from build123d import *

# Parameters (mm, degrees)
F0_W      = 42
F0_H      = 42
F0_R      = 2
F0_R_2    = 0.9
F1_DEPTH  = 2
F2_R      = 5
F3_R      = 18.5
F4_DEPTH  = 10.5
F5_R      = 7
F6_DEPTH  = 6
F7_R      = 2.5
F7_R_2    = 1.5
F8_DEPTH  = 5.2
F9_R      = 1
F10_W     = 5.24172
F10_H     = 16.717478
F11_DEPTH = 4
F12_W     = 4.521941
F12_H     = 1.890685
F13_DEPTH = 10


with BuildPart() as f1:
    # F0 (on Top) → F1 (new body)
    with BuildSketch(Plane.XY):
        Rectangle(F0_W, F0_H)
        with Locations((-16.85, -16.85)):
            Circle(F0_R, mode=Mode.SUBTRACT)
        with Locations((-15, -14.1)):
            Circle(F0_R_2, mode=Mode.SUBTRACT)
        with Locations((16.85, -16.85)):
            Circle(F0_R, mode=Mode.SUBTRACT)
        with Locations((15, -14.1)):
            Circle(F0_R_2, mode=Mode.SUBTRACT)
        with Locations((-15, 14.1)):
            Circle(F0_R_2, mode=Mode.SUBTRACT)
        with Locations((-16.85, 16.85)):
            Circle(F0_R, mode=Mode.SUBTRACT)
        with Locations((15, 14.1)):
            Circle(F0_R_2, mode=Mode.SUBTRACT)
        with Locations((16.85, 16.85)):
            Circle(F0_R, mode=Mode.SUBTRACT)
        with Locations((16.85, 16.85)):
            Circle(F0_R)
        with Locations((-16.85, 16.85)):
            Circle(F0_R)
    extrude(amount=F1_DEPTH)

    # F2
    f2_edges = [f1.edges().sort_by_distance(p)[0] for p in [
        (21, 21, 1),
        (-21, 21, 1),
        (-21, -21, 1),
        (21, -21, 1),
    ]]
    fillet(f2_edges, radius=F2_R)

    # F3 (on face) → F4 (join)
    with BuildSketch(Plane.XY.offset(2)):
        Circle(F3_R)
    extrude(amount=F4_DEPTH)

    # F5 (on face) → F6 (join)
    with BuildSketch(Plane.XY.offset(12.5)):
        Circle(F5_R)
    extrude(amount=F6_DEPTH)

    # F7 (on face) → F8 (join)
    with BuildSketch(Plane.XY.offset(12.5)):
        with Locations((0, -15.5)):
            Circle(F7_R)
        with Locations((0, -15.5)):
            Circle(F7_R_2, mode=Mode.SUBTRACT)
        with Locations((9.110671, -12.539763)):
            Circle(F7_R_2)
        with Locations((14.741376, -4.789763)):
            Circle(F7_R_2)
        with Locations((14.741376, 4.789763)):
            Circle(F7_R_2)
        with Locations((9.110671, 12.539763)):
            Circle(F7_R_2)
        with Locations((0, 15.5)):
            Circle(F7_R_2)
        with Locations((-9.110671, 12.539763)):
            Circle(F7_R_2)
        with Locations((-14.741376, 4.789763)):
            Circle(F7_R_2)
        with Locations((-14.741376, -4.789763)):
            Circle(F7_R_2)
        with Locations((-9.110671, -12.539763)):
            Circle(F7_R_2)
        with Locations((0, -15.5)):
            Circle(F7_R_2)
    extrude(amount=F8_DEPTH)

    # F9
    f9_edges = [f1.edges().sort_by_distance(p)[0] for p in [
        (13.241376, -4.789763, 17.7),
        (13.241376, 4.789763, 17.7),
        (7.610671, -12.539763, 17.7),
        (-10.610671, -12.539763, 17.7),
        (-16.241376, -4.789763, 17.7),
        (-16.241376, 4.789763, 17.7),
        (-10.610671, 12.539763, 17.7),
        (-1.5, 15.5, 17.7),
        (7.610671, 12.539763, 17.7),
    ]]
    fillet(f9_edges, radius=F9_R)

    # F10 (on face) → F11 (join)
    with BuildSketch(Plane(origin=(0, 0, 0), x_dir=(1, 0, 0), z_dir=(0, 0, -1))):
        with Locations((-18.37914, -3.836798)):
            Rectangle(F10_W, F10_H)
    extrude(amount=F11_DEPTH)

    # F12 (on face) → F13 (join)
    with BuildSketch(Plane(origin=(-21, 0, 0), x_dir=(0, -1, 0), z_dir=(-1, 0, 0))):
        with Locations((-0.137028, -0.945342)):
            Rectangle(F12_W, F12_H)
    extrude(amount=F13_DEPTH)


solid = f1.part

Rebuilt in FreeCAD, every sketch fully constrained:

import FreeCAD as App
import Part
import Sketcher


def edges_at(feature, points):
    """Names of the edges that pass closest to the given points."""
    edges = feature.Shape.Edges
    near = lambda p: min(range(len(edges)), key=lambda i: edges[i].distToShape(Part.Vertex(*p))[0])
    return sorted({f"Edge{near(p) + 1}" for p in points})

doc = App.newDocument("Part")
body = doc.addObject("PartDesign::Body", "Body")

# Sketch on XY plane
sketch1 = body.newObject("Sketcher::SketchObject", "Sketch")
sketch1.AttachmentSupport = (doc.getObject("XY_Plane"), [""])
sketch1.MapMode = "FlatFace"
sketch1.addGeometry(Part.LineSegment(App.Vector(-21, 21, 0), App.Vector(-21, -21, 0)), False)
sketch1.addGeometry(Part.LineSegment(App.Vector(-21, -21, 0), App.Vector(21, -21, 0)), False)
sketch1.addGeometry(Part.LineSegment(App.Vector(21, -21, 0), App.Vector(21, 21, 0)), False)
sketch1.addGeometry(Part.LineSegment(App.Vector(21, 21, 0), App.Vector(-21, 21, 0)), False)
sketch1.addGeometry(Part.Circle(App.Vector(-16.9, -16.9, 0), App.Vector(0, 0, 1), 2), False)
sketch1.addGeometry(Part.Circle(App.Vector(-15, -14.1, 0), App.Vector(0, 0, 1), 0.9), False)
sketch1.addGeometry(Part.Circle(App.Vector(16.9, -16.9, 0), App.Vector(0, 0, 1), 2), False)
sketch1.addGeometry(Part.Circle(App.Vector(15, -14.1, 0), App.Vector(0, 0, 1), 0.9), False)
sketch1.addGeometry(Part.Circle(App.Vector(-15, 14.1, 0), App.Vector(0, 0, 1), 0.9), False)
sketch1.addGeometry(Part.Circle(App.Vector(15, 14.1, 0), App.Vector(0, 0, 1), 0.9), False)
sketch1.addConstraint(Sketcher.Constraint("Coincident", 0, 2, 1, 1))
sketch1.addConstraint(Sketcher.Constraint("Coincident", 1, 2, 2, 1))
sketch1.addConstraint(Sketcher.Constraint("Coincident", 2, 2, 3, 1))
sketch1.addConstraint(Sketcher.Constraint("Coincident", 3, 2, 0, 1))
sketch1.addConstraint(Sketcher.Constraint("Vertical", 0))
sketch1.addConstraint(Sketcher.Constraint("Horizontal", 1))
sketch1.addConstraint(Sketcher.Constraint("Vertical", 2))
sketch1.addConstraint(Sketcher.Constraint("Horizontal", 3))
sketch1.addConstraint(Sketcher.Constraint("Equal", 4, 6))
sketch1.addConstraint(Sketcher.Constraint("Equal", 5, 7))
sketch1.addConstraint(Sketcher.Constraint("Equal", 7, 8))
sketch1.addConstraint(Sketcher.Constraint("Equal", 8, 9))
sketch1.addConstraint(Sketcher.Constraint("Symmetric", 7, 3, 8, 3, -1, 1))
sketch1.addConstraint(Sketcher.Constraint("Symmetric", 5, 3, 9, 3, -1, 1))
sketch1.addConstraint(Sketcher.Constraint("Symmetric", 0, 2, 2, 2, -1, 1))
sketch1.addConstraint(Sketcher.Constraint("Symmetric", 4, 3, 6, 3, -2))
sketch1.addConstraint(Sketcher.Constraint("Symmetric", 5, 3, 7, 3, -2))
sketch1.addConstraint(Sketcher.Constraint("Equal", 3, 0))
sketch1.addConstraint(Sketcher.Constraint("Diameter", 4, 4.0))
sketch1.addConstraint(Sketcher.Constraint("Diameter", 5, 1.8))
sketch1.addConstraint(Sketcher.Constraint("DistanceX", 1, 1, 1, 2, 42.0))
sketch1.addConstraint(Sketcher.Constraint("DistanceX", 5, 3, -1, 1, 15.0))
sketch1.addConstraint(Sketcher.Constraint("DistanceY", 5, 3, -1, 1, 14.1))
sketch1.addConstraint(Sketcher.Constraint("DistanceX", 4, 3, 6, 3, 33.7))
sketch1.addConstraint(Sketcher.Constraint("DistanceY", 4, 3, -1, 1, 16.85))
pad1 = body.newObject("PartDesign::Pad", "Pad")
pad1.Profile = sketch1
pad1.Length = 2
doc.recompute()

fillet = body.newObject("PartDesign::Fillet", "Fillet")
fillet.Base = (pad1, edges_at(pad1, [
    (21, 21, 1),
    (-21, 21, 1),
    (-21, -21, 1),
    (21, -21, 1),
]))
fillet.Radius = 5

# Sketch on XY plane
sketch2 = body.newObject("Sketcher::SketchObject", "Sketch001")
sketch2.AttachmentSupport = (doc.getObject("XY_Plane"), [""])
sketch2.MapMode = "FlatFace"
sketch2.AttachmentOffset = App.Placement(App.Vector(0, 0, 2), App.Rotation())
sketch2.addGeometry(Part.Circle(App.Vector(0, 0, 0), App.Vector(0, 0, 1), 18), False)
sketch2.addConstraint(Sketcher.Constraint("Coincident", 0, 3, -1, 1))
sketch2.addConstraint(Sketcher.Constraint("Diameter", 0, 37.0))
pad2 = body.newObject("PartDesign::Pad", "Pad001")
pad2.Profile = sketch2
pad2.Length = 10.5

# Sketch on XY plane
sketch3 = body.newObject("Sketcher::SketchObject", "Sketch002")
sketch3.AttachmentSupport = (doc.getObject("XY_Plane"), [""])
sketch3.MapMode = "FlatFace"
sketch3.AttachmentOffset = App.Placement(App.Vector(0, 0, 12.5), App.Rotation())
sketch3.addGeometry(Part.Circle(App.Vector(0, 0, 0), App.Vector(0, 0, 1), 7), False)
sketch3.addConstraint(Sketcher.Constraint("Coincident", 0, 3, -1, 1))
sketch3.addConstraint(Sketcher.Constraint("Diameter", 0, 14.0))
pad3 = body.newObject("PartDesign::Pad", "Pad002")
pad3.Profile = sketch3
pad3.Length = 6

# Sketch on XY plane
sketch4 = body.newObject("Sketcher::SketchObject", "Sketch003")
sketch4.AttachmentSupport = (doc.getObject("XY_Plane"), [""])
sketch4.MapMode = "FlatFace"
sketch4.AttachmentOffset = App.Placement(App.Vector(0, 0, 12.5), App.Rotation())
sketch4.addGeometry(Part.Circle(App.Vector(0, -15.5, 0), App.Vector(0, 0, 1), 2.5), False)
sketch4.addGeometry(Part.Circle(App.Vector(9.1, -12.5, 0), App.Vector(0, 0, 1), 1.5), False)
sketch4.addGeometry(Part.Circle(App.Vector(14.7, -4.8, 0), App.Vector(0, 0, 1), 1.5), False)
sketch4.addGeometry(Part.Circle(App.Vector(14.7, 4.8, 0), App.Vector(0, 0, 1), 1.5), False)
sketch4.addGeometry(Part.Circle(App.Vector(9.1, 12.5, 0), App.Vector(0, 0, 1), 1.5), False)
sketch4.addGeometry(Part.Circle(App.Vector(0, 15.5, 0), App.Vector(0, 0, 1), 1.5), False)
sketch4.addGeometry(Part.Circle(App.Vector(-9.1, 12.5, 0), App.Vector(0, 0, 1), 1.5), False)
sketch4.addGeometry(Part.Circle(App.Vector(-14.7, 4.8, 0), App.Vector(0, 0, 1), 1.5), False)
sketch4.addGeometry(Part.Circle(App.Vector(-14.7, -4.8, 0), App.Vector(0, 0, 1), 1.5), False)
sketch4.addGeometry(Part.Circle(App.Vector(-9.1, -12.5, 0), App.Vector(0, 0, 1), 1.5), False)
sketch4.addConstraint(Sketcher.Constraint("Equal", 1, 2))
sketch4.addConstraint(Sketcher.Constraint("Equal", 2, 3))
sketch4.addConstraint(Sketcher.Constraint("Equal", 3, 4))
sketch4.addConstraint(Sketcher.Constraint("Equal", 4, 5))
sketch4.addConstraint(Sketcher.Constraint("Equal", 5, 6))
sketch4.addConstraint(Sketcher.Constraint("Equal", 6, 7))
sketch4.addConstraint(Sketcher.Constraint("Equal", 7, 8))
sketch4.addConstraint(Sketcher.Constraint("Equal", 8, 9))
sketch4.addConstraint(Sketcher.Constraint("Symmetric", 0, 3, 5, 3, -1, 1))
sketch4.addConstraint(Sketcher.Constraint("Symmetric", 1, 3, 6, 3, -1, 1))
sketch4.addConstraint(Sketcher.Constraint("Symmetric", 2, 3, 7, 3, -1, 1))
sketch4.addConstraint(Sketcher.Constraint("Symmetric", 3, 3, 8, 3, -1, 1))
sketch4.addConstraint(Sketcher.Constraint("Symmetric", 4, 3, 9, 3, -1, 1))
sketch4.addConstraint(Sketcher.Constraint("Symmetric", 4, 3, 6, 3, -2))
sketch4.addConstraint(Sketcher.Constraint("Symmetric", 3, 3, 7, 3, -2))
sketch4.addConstraint(Sketcher.Constraint("PointOnObject", 0, 3, -2))
sketch4.addConstraint(Sketcher.Constraint("Diameter", 0, 5.0))
sketch4.addConstraint(Sketcher.Constraint("Diameter", 1, 3.0))
sketch4.addConstraint(Sketcher.Constraint("DistanceY", 0, 3, 5, 3, 31.0))
sketch4.addConstraint(Sketcher.Constraint("DistanceY", 1, 3, 2, 3, 7.75))
sketch4.addConstraint(Sketcher.Constraint("DistanceX", -1, 1, 1, 3, 9.110671))
sketch4.addConstraint(Sketcher.Constraint("DistanceY", 1, 3, -1, 1, 12.539763))
sketch4.addConstraint(Sketcher.Constraint("DistanceX", -1, 1, 2, 3, 14.741376))
pad4 = body.newObject("PartDesign::Pad", "Pad003")
pad4.Profile = sketch4
pad4.Length = 5.2
doc.recompute()

fillet2 = body.newObject("PartDesign::Fillet", "Fillet001")
fillet2.Base = (pad4, edges_at(pad4, [
    (13.241, -4.79, 17.7),
    (13.241, 4.79, 17.7),
    (7.611, -12.54, 17.7),
    (-10.611, -12.54, 17.7),
    (-16.241, -4.79, 17.7),
    (-16.241, 4.79, 17.7),
    (-10.611, 12.54, 17.7),
    (-1.5, 15.5, 17.7),
    (7.611, 12.54, 17.7),
]))
fillet2.Radius = 1

# Sketch on XY plane
sketch5 = body.newObject("Sketcher::SketchObject", "Sketch004")
sketch5.AttachmentSupport = (doc.getObject("XY_Plane"), [""])
sketch5.MapMode = "FlatFace"
sketch5.addGeometry(Part.LineSegment(App.Vector(-21, -5, 0), App.Vector(-21, 12, 0)), False)
sketch5.addGeometry(Part.LineSegment(App.Vector(-21, 12, 0), App.Vector(-16, 12, 0)), False)
sketch5.addGeometry(Part.LineSegment(App.Vector(-16, 12, 0), App.Vector(-16, -5, 0)), False)
sketch5.addGeometry(Part.LineSegment(App.Vector(-16, -5, 0), App.Vector(-21, -5, 0)), False)
sketch5.addConstraint(Sketcher.Constraint("Coincident", 0, 2, 1, 1))
sketch5.addConstraint(Sketcher.Constraint("Coincident", 1, 2, 2, 1))
sketch5.addConstraint(Sketcher.Constraint("Coincident", 2, 2, 3, 1))
sketch5.addConstraint(Sketcher.Constraint("Coincident", 3, 2, 0, 1))
sketch5.addConstraint(Sketcher.Constraint("Vertical", 0))
sketch5.addConstraint(Sketcher.Constraint("Horizontal", 1))
sketch5.addConstraint(Sketcher.Constraint("Vertical", 2))
sketch5.addConstraint(Sketcher.Constraint("Horizontal", 3))
sketch5.addConstraint(Sketcher.Constraint("DistanceX", 0, 2, -1, 1, 21.0))
sketch5.addConstraint(Sketcher.Constraint("DistanceX", 1, 1, 1, 2, 5.24172))
sketch5.addConstraint(Sketcher.Constraint("DistanceY", 0, 1, 0, 2, 16.717478))
sketch5.addConstraint(Sketcher.Constraint("DistanceY", 2, 2, -1, 1, 4.521941))
pad5 = body.newObject("PartDesign::Pad", "Pad004")
pad5.Profile = sketch5
pad5.Length = 4
pad5.Reversed = True

# Sketch on YZ plane
sketch6 = body.newObject("Sketcher::SketchObject", "Sketch005")
sketch6.AttachmentSupport = (doc.getObject("YZ_Plane"), [""])
sketch6.MapMode = "FlatFace"
sketch6.AttachmentOffset = App.Placement(App.Vector(0, 0, -21), App.Rotation())
sketch6.addGeometry(Part.LineSegment(App.Vector(2.4, 0, 0), App.Vector(2.4, -1.9, 0)), False)
sketch6.addGeometry(Part.LineSegment(App.Vector(2.4, -1.9, 0), App.Vector(-2.1, -1.9, 0)), False)
sketch6.addGeometry(Part.LineSegment(App.Vector(-2.1, -1.9, 0), App.Vector(-2.1, 0, 0)), False)
sketch6.addGeometry(Part.LineSegment(App.Vector(-2.1, 0, 0), App.Vector(2.4, 0, 0)), False)
sketch6.addConstraint(Sketcher.Constraint("Coincident", 0, 2, 1, 1))
sketch6.addConstraint(Sketcher.Constraint("Coincident", 1, 2, 2, 1))
sketch6.addConstraint(Sketcher.Constraint("Coincident", 2, 2, 3, 1))
sketch6.addConstraint(Sketcher.Constraint("Coincident", 3, 2, 0, 1))
sketch6.addConstraint(Sketcher.Constraint("Vertical", 0))
sketch6.addConstraint(Sketcher.Constraint("Horizontal", 1))
sketch6.addConstraint(Sketcher.Constraint("Vertical", 2))
sketch6.addConstraint(Sketcher.Constraint("Horizontal", 3))
sketch6.addConstraint(Sketcher.Constraint("PointOnObject", 2, 2, -1))
sketch6.addConstraint(Sketcher.Constraint("DistanceX", -1, 1, 0, 2, 2.397998))
sketch6.addConstraint(Sketcher.Constraint("DistanceX", 1, 2, 1, 1, 4.521941))
sketch6.addConstraint(Sketcher.Constraint("DistanceY", 0, 2, 0, 1, 1.890685))
pad6 = body.newObject("PartDesign::Pad", "Pad005")
pad6.Profile = sketch6
pad6.Length = 10
pad6.Reversed = True

doc.recompute()
